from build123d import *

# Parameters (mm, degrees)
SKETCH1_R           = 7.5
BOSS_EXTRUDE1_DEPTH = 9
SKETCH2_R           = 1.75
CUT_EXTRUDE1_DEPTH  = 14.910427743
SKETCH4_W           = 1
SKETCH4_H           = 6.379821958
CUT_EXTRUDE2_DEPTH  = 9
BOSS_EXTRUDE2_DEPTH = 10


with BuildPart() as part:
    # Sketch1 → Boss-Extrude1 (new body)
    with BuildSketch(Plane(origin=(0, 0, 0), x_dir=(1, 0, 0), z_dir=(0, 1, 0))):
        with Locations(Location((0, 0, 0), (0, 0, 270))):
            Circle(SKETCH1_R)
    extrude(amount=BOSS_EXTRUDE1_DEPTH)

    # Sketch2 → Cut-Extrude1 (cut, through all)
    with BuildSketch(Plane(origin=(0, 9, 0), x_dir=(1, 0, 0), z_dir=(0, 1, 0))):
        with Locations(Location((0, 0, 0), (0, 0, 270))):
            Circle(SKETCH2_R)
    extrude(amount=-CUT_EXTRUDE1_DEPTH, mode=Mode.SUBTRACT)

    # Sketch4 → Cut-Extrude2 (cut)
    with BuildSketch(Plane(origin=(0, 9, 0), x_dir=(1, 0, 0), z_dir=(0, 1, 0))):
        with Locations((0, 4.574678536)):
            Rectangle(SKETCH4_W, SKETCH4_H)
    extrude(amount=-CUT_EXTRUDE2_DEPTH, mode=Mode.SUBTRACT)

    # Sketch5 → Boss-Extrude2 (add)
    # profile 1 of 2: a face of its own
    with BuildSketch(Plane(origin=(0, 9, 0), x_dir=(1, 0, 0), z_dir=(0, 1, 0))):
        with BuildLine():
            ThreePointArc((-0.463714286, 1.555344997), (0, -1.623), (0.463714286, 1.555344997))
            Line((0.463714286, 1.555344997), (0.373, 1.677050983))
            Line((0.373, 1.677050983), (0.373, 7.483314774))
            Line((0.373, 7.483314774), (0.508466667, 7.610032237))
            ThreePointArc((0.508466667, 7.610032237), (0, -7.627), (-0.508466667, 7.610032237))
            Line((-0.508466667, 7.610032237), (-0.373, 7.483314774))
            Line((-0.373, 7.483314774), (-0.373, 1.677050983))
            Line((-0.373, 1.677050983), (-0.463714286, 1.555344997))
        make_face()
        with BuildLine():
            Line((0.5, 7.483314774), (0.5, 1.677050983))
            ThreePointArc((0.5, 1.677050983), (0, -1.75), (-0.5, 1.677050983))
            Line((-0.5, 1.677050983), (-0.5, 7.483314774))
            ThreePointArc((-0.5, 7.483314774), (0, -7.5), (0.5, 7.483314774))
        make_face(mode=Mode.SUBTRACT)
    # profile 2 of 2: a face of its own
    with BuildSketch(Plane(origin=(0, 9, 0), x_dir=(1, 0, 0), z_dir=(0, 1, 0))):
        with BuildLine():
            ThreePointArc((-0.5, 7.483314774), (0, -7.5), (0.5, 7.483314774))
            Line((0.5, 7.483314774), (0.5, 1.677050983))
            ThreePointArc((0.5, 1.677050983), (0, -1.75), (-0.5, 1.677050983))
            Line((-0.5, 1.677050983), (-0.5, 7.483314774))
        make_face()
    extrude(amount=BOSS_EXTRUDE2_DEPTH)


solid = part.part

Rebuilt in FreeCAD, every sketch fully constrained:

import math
import FreeCAD as App
import Part
import Sketcher

doc = App.newDocument("Part")
body = doc.addObject("PartDesign::Body", "Body")

sketch1 = body.newObject("Sketcher::SketchObject", "Sketch")
sketch1.AttachmentSupport = (doc.getObject("XZ_Plane"), [""])
sketch1.MapMode = "FlatFace"
sketch1.addGeometry(Part.Circle(App.Vector(0, 0, 0), App.Vector(0, 0, 1), 8), False)
sketch1.addConstraint(Sketcher.Constraint("Coincident", 0, 3, -1, 1))
sketch1.addConstraint(Sketcher.Constraint("Diameter", 0, 15.0))
pad1 = body.newObject("PartDesign::Pad", "Pad")
pad1.Profile = sketch1
pad1.Length = 9
pad1.Reversed = True

sketch2 = body.newObject("Sketcher::SketchObject", "Sketch001")
sketch2.AttachmentSupport = (doc.getObject("XZ_Plane"), [""])
sketch2.MapMode = "FlatFace"
sketch2.AttachmentOffset = App.Placement(App.Vector(0, 0, -9), App.Rotation())
sketch2.addGeometry(Part.Circle(App.Vector(0, 0, 0), App.Vector(0, 0, 1), 1.8), False)
sketch2.addConstraint(Sketcher.Constraint("Coincident", 0, 3, -1, 1))
sketch2.addConstraint(Sketcher.Constraint("Diameter", 0, 3.5))
pocket1 = body.newObject("PartDesign::Pocket", "Pocket")
pocket1.Profile = sketch2
pocket1.Type = "ThroughAll"
pocket1.Reversed = True

sketch3 = body.newObject("Sketcher::SketchObject", "Sketch002")
sketch3.AttachmentSupport = (doc.getObject("XZ_Plane"), [""])
sketch3.MapMode = "FlatFace"
sketch3.AttachmentOffset = App.Placement(App.Vector(0, 0, -9), App.Rotation())
sketch3.addGeometry(Part.LineSegment(App.Vector(-0.5, -7.8, 0), App.Vector(-0.5, -1.4, 0)), False)
sketch3.addGeometry(Part.LineSegment(App.Vector(-0.5, -1.4, 0), App.Vector(0.5, -1.4, 0)), False)
sketch3.addGeometry(Part.LineSegment(App.Vector(0.5, -1.4, 0), App.Vector(0.5, -7.8, 0)), False)
sketch3.addGeometry(Part.LineSegment(App.Vector(0.5, -7.8, 0), App.Vector(-0.5, -7.8, 0)), False)
sketch3.addConstraint(Sketcher.Constraint("Coincident", 0, 2, 1, 1))
sketch3.addConstraint(Sketcher.Constraint("Coincident", 1, 2, 2, 1))
sketch3.addConstraint(Sketcher.Constraint("Coincident", 2, 2, 3, 1))
sketch3.addConstraint(Sketcher.Constraint("Coincident", 3, 2, 0, 1))
sketch3.addConstraint(Sketcher.Constraint("Vertical", 0))
sketch3.addConstraint(Sketcher.Constraint("Horizontal", 1))
sketch3.addConstraint(Sketcher.Constraint("Vertical", 2))
sketch3.addConstraint(Sketcher.Constraint("Horizontal", 3))
sketch3.addConstraint(Sketcher.Constraint("DistanceX", 1, 1, 1, 2, 1.0))
sketch3.addConstraint(Sketcher.Constraint("DistanceX", 0, 2, -1, 1, 0.5))
sketch3.addConstraint(Sketcher.Constraint("DistanceY", 0, 1, 0, 2, 6.379822))
sketch3.addConstraint(Sketcher.Constraint("DistanceY", 2, 2, -1, 1, 7.76459))
pocket2 = body.newObject("PartDesign::Pocket", "Pocket001")
pocket2.Profile = sketch3
pocket2.Length = 9
pocket2.Reversed = True

sketch4 = body.newObject("Sketcher::SketchObject", "Sketch003")
sketch4.AttachmentSupport = (doc.getObject("XZ_Plane"), [""])
sketch4.MapMode = "FlatFace"
sketch4.AttachmentOffset = App.Placement(App.Vector(0, 0, -9), App.Rotation())
sketch4.addGeometry(Part.ArcOfCircle(Part.Circle(App.Vector(0, 0, 0), App.Vector(0, 0, 1), 1.62), math.radians(-73), math.radians(253)), False)
sketch4.addGeometry(Part.LineSegment(App.Vector(-0.46, -1.56, 0), App.Vector(-0.37, -1.68, 0)), False)
sketch4.addGeometry(Part.LineSegment(App.Vector(-0.37, -1.68, 0), App.Vector(-0.37, -7.48, 0)), False)
sketch4.addGeometry(Part.LineSegment(App.Vector(-0.37, -7.48, 0), App.Vector(-0.51, -7.61, 0)), False)
sketch4.addGeometry(Part.ArcOfCircle(Part.Circle(App.Vector(0, 0, 0), App.Vector(0, 0, 1), 7.63), math.radians(-86), math.radians(266)), False)
sketch4.addGeometry(Part.LineSegment(App.Vector(0.51, -7.61, 0), App.Vector(0.37, -7.48, 0)), False)
sketch4.addGeometry(Part.LineSegment(App.Vector(0.37, -7.48, 0), App.Vector(0.37, -1.68, 0)), False)
sketch4.addGeometry(Part.LineSegment(App.Vector(0.37, -1.68, 0), App.Vector(0.46, -1.56, 0)), False)
sketch4.addConstraint(Sketcher.Constraint("Coincident", 0, 2, 1, 1))
sketch4.addConstraint(Sketcher.Constraint("Coincident", 1, 2, 2, 1))
sketch4.addConstraint(Sketcher.Constraint("Coincident", 2, 2, 3, 1))
sketch4.addConstraint(Sketcher.Constraint("Coincident", 3, 2, 4, 2))
sketch4.addConstraint(Sketcher.Constraint("Coincident", 4, 1, 5, 1))
sketch4.addConstraint(Sketcher.Constraint("Coincident", 5, 2, 6, 1))
sketch4.addConstraint(Sketcher.Constraint("Coincident", 6, 2, 7, 1))
sketch4.addConstraint(Sketcher.Constraint("Coincident", 7, 2, 0, 1))
sketch4.addConstraint(Sketcher.Constraint("Vertical", 2))
sketch4.addConstraint(Sketcher.Constraint("Vertical", 6))
sketch4.addConstraint(Sketcher.Constraint("Coincident", 0, 3, -1, 1))
sketch4.addConstraint(Sketcher.Constraint("Coincident", 4, 3, -1, 1))
sketch4.addConstraint(Sketcher.Constraint("Symmetric", 2, 2, 5, 2, -2))
sketch4.addConstraint(Sketcher.Constraint("Horizontal", 3, 2, 4, 1))
sketch4.addConstraint(Sketcher.Constraint("Horizontal", 1, 2, 6, 2))
sketch4.addConstraint(Sketcher.Constraint("Horizontal", 0, 2, 7, 2))
sketch4.addConstraint(Sketcher.Constraint("Radius", 0, 1.623))
sketch4.addConstraint(Sketcher.Constraint("Radius", 4, 7.627))
sketch4.addConstraint(Sketcher.Constraint("DistanceX", 1, 2, -1, 1, 0.373))
sketch4.addConstraint(Sketcher.Constraint("DistanceY", 2, 2, 2, 1, 5.806264))
sketch4.addConstraint(Sketcher.Constraint("DistanceY", 1, 2, -1, 1, 1.677051))
sketch4.addConstraint(Sketcher.Constraint("DistanceY", 2, 2, 0, 2, 5.92797))
sketch4.addConstraint(Sketcher.Constraint("DistanceY", 3, 2, 1, 2, 5.932981))
pad2 = body.newObject("PartDesign::Pad", "Pad001")
pad2.Profile = sketch4
pad2.Length = 10
pad2.Reversed = True

doc.recompute()
